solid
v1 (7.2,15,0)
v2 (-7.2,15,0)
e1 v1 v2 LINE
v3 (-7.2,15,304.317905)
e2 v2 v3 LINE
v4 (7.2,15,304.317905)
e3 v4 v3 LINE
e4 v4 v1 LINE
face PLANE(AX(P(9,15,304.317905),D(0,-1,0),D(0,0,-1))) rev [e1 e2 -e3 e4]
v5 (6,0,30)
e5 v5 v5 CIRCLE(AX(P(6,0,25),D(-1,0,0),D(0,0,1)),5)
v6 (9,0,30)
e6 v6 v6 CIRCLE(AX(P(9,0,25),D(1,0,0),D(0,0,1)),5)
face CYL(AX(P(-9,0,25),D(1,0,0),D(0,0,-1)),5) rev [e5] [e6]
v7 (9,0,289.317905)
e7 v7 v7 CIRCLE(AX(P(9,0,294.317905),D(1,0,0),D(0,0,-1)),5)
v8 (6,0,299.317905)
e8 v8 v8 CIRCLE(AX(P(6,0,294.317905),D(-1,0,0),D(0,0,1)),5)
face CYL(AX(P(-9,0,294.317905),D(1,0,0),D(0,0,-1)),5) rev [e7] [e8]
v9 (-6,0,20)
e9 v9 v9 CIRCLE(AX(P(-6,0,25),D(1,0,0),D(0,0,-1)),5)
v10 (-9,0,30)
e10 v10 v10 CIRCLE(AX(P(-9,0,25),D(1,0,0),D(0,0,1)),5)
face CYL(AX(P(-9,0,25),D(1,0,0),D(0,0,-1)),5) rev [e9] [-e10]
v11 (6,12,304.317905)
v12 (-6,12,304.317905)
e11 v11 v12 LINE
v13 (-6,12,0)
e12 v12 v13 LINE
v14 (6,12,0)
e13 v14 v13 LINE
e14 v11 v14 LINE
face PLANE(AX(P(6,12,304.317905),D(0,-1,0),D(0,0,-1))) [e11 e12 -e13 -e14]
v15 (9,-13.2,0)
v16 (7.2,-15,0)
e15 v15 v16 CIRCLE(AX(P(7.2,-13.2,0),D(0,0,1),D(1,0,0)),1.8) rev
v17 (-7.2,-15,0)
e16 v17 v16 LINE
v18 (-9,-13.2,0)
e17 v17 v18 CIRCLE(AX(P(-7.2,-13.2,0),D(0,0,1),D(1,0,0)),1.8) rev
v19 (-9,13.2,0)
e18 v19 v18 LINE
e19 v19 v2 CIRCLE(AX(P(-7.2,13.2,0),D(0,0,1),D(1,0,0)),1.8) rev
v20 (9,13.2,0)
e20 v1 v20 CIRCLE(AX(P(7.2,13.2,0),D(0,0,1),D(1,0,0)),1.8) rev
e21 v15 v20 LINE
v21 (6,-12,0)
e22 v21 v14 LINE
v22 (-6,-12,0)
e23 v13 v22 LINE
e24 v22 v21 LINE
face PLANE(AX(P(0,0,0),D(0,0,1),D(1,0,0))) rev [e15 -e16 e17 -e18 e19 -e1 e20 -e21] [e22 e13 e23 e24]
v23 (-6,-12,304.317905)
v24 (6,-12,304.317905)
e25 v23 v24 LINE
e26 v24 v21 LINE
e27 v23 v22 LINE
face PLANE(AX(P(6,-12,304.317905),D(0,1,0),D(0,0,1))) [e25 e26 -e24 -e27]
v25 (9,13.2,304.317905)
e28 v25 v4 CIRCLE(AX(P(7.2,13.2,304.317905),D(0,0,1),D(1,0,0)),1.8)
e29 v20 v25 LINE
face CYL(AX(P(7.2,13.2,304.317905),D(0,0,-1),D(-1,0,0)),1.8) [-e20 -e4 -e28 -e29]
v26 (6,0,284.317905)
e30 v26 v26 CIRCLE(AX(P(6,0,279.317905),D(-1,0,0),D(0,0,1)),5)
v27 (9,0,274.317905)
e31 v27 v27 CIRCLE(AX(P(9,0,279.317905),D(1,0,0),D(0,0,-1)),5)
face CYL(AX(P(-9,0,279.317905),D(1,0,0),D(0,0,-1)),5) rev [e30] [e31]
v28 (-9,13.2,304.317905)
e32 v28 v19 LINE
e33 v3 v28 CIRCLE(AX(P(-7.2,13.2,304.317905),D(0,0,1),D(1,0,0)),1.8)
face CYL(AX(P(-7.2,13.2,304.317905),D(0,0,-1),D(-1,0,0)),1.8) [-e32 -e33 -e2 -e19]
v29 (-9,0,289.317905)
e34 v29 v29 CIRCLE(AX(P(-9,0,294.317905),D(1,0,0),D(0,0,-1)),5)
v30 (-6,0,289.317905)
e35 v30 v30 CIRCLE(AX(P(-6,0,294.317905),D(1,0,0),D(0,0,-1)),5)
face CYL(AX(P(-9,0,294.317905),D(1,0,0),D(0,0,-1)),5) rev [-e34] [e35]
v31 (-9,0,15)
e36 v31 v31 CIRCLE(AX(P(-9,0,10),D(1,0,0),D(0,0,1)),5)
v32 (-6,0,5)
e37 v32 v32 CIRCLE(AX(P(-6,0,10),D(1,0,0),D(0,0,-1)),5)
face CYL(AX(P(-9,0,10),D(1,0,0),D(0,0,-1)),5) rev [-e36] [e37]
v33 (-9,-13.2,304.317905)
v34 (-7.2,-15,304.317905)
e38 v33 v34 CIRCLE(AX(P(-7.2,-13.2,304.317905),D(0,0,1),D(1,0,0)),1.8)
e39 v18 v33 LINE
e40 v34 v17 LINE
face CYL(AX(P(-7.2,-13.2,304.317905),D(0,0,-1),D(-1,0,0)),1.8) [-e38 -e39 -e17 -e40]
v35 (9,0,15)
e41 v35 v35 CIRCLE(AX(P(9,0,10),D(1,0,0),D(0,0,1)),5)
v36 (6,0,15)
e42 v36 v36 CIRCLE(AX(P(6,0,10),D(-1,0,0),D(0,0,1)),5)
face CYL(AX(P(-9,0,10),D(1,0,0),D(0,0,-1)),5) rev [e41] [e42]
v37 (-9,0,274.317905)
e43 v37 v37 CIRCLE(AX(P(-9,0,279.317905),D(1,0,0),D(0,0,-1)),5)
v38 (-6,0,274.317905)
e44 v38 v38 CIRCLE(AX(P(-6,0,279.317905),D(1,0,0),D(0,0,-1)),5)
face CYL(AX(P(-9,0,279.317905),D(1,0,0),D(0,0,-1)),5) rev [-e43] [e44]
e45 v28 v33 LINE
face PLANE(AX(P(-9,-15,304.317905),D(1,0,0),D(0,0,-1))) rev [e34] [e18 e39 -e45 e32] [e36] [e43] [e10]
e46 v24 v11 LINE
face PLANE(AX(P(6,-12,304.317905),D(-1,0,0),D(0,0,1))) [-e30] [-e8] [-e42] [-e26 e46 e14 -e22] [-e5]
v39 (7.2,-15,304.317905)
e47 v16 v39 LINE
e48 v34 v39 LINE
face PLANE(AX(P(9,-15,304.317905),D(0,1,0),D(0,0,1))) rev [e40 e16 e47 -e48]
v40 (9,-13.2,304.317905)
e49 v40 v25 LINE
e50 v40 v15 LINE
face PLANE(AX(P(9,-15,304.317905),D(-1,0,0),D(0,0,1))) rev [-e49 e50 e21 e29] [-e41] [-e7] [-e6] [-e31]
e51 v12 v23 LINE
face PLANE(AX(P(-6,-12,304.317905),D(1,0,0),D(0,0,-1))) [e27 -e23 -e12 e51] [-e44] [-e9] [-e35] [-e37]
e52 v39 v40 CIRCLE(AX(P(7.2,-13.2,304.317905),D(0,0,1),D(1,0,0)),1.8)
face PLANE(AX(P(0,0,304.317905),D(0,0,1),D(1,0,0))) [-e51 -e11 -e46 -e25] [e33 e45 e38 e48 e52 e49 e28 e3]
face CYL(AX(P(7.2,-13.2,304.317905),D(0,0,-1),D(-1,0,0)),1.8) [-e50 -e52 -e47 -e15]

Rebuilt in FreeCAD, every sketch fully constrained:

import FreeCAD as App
import Part
import Sketcher
from FreeCAD import Vector


def edges_at(feature, points):
    """Names of the edges that pass closest to the given points."""
    edges = feature.Shape.Edges
    near = lambda p: min(range(len(edges)), key=lambda i: edges[i].distToShape(Part.Vertex(*p))[0])
    return sorted({f"Edge{near(p) + 1}" for p in points})


def add_polygon(sketch, points):
    """Adds a closed chain of lines whose ends are joined by coincident constraints."""
    first, n = sketch.GeometryCount, len(points)
    for a, b in zip(points, points[1:] + points[:1]):
        sketch.addGeometry(Part.LineSegment(App.Vector(*a, 0), App.Vector(*b, 0)), False)
    for i in range(n):
        sketch.addConstraint(Sketcher.Constraint("Coincident", first + i, 2, first + (i + 1) % n, 1))

doc = App.newDocument("Part")
body = doc.addObject("PartDesign::Body", "Body")

# Sketch on XY plane
sketch1 = body.newObject("Sketcher::SketchObject", "Sketch")
sketch1.AttachmentSupport = (doc.getObject("XY_Plane"), [""])
sketch1.MapMode = "FlatFace"
add_polygon(sketch1, [(-9, 15), (-9, -15), (9, -15), (9, 15)])  # lines 0-3
add_polygon(sketch1, [(6, -12), (-6, -12), (-6, 12), (6, 12)])  # lines 4-7
sketch1.addConstraint(Sketcher.Constraint("Vertical", 0))
sketch1.addConstraint(Sketcher.Constraint("Horizontal", 1))
sketch1.addConstraint(Sketcher.Constraint("Vertical", 2))
sketch1.addConstraint(Sketcher.Constraint("Horizontal", 3))
sketch1.addConstraint(Sketcher.Constraint("Horizontal", 4))
sketch1.addConstraint(Sketcher.Constraint("Vertical", 5))
sketch1.addConstraint(Sketcher.Constraint("Horizontal", 6))
sketch1.addConstraint(Sketcher.Constraint("Vertical", 7))
sketch1.addConstraint(Sketcher.Constraint("Symmetric", 0, 2, 2, 2, -1, 1))
sketch1.addConstraint(Sketcher.Constraint("Symmetric", 4, 2, 6, 2, -1, 1))
sketch1.addConstraint(Sketcher.Constraint("DistanceX", 1, 1, 1, 2, 18.0))
sketch1.addConstraint(Sketcher.Constraint("DistanceX", 4, 2, 4, 1, 12.0))
sketch1.addConstraint(Sketcher.Constraint("DistanceY", 0, 2, 0, 1, 30.0))
sketch1.addConstraint(Sketcher.Constraint("DistanceY", 5, 1, 5, 2, 24.0))
pad1 = body.newObject("PartDesign::Pad", "Pad")
pad1.Profile = sketch1
pad1.Length = 304.317905

# Sketch on YZ plane
sketch2 = body.newObject("Sketcher::SketchObject", "Sketch001")
sketch2.AttachmentSupport = (doc.getObject("YZ_Plane"), [""])
sketch2.MapMode = "FlatFace"
sketch2.AttachmentOffset = App.Placement(Vector(0, 0, 9), App.Rotation())
sketch2.addGeometry(Part.Circle(Vector(0, 294, 0), Vector(0, 0, 1), 5), False)
sketch2.addGeometry(Part.Circle(Vector(0, 279, 0), Vector(0, 0, 1), 5), False)
sketch2.addGeometry(Part.Circle(Vector(0, 25, 0), Vector(0, 0, 1), 5), False)
sketch2.addGeometry(Part.Circle(Vector(0, 10, 0), Vector(0, 0, 1), 5), False)
sketch2.addConstraint(Sketcher.Constraint("Equal", 0, 1))
sketch2.addConstraint(Sketcher.Constraint("Equal", 1, 2))
sketch2.addConstraint(Sketcher.Constraint("Equal", 2, 3))
sketch2.addConstraint(Sketcher.Constraint("PointOnObject", 0, 3, -2))
sketch2.addConstraint(Sketcher.Constraint("PointOnObject", 1, 3, -2))
sketch2.addConstraint(Sketcher.Constraint("PointOnObject", 2, 3, -2))
sketch2.addConstraint(Sketcher.Constraint("PointOnObject", 3, 3, -2))
sketch2.addConstraint(Sketcher.Constraint("Diameter", 0, 10.0))
sketch2.addConstraint(Sketcher.Constraint("DistanceY", -1, 1, 2, 3, 25.0))
sketch2.addConstraint(Sketcher.Constraint("DistanceY", -1, 1, 3, 3, 10.0))
sketch2.addConstraint(Sketcher.Constraint("DistanceY", 1, 3, 0, 3, 15.0))
sketch2.addConstraint(Sketcher.Constraint("DistanceY", -1, 1, 0, 3, 294.317905))
pocket1 = body.newObject("PartDesign::Pocket", "Pocket")
pocket1.Profile = sketch2
pocket1.Type = "ThroughAll"
doc.recompute()

fillet = body.newObject("PartDesign::Fillet", "Fillet")
fillet.Base = (pocket1, edges_at(pocket1, [
    (-9, 15, 152.159),
    (9, 15, 152.159),
    (9, -15, 152.159),
    (-9, -15, 152.159),
]))
fillet.Radius = 1.8

doc.recompute()
